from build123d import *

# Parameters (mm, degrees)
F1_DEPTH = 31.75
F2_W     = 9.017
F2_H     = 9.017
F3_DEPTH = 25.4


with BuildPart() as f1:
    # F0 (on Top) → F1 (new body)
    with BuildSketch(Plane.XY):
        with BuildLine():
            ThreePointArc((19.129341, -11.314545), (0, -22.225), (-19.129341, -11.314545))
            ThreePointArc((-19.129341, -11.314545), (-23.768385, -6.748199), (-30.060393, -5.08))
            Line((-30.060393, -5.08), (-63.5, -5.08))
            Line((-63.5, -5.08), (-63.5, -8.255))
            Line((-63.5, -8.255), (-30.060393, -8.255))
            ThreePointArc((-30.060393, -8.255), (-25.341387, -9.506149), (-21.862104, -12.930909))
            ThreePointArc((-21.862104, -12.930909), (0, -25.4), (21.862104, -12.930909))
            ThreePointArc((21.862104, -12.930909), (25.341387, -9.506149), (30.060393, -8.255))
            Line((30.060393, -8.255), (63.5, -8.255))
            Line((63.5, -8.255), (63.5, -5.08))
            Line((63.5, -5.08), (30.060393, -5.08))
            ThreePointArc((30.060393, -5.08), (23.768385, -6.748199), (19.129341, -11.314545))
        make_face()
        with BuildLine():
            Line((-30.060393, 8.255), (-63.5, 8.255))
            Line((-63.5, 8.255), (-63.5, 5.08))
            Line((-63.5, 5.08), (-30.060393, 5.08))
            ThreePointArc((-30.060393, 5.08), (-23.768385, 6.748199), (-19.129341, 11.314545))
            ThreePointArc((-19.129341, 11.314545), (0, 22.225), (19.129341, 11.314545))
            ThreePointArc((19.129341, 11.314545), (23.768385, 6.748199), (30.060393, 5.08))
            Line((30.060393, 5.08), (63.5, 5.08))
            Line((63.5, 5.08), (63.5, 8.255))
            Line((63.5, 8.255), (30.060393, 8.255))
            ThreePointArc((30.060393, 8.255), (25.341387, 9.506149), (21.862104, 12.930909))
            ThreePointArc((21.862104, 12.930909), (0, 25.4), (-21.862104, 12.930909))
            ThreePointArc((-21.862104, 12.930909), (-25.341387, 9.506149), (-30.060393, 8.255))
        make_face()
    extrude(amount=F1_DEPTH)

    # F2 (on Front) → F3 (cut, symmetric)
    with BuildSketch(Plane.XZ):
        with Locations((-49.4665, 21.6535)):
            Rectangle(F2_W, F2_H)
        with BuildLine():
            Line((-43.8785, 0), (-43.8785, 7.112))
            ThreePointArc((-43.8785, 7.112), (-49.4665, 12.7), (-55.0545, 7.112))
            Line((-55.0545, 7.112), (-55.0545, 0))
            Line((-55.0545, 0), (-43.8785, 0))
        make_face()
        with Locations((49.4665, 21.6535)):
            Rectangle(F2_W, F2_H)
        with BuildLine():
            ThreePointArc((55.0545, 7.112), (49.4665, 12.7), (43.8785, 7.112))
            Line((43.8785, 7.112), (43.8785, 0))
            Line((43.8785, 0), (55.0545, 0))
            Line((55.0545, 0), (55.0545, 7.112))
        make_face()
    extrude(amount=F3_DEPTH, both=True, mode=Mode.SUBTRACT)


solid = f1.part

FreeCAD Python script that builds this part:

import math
import FreeCAD as App
import Part
import Sketcher
from FreeCAD import Vector
Q = App.Units.Quantity

doc = App.newDocument("Part")
body = doc.addObject("PartDesign::Body", "Body")
body.AllowCompound = True

# Sketch on XY plane
sketch1 = doc.addObject("Sketcher::SketchObject", "Sketch")
body.addObject(sketch1)
sketch1.AttachmentSupport = (doc.XY_Plane, [""])
sketch1.MapMode = "FlatFace"
sketch1.addGeometry(Part.ArcOfCircle(Part.Circle(Vector(0, 0, 0), Vector(0, 0, 1), 22.225), math.radians(-149.396707), math.radians(-30.603293)), False)
sketch1.addGeometry(Part.ArcOfCircle(Part.Circle(Vector(-30.060394, -17.780001, 0), Vector(0, 0, 1), 12.700001), math.radians(30.603301), math.radians(89.999998)), False)
sketch1.addGeometry(Part.LineSegment(Vector(-30.060393, -5.08, 0), Vector(-63.5, -5.08, 0)), False)
sketch1.addGeometry(Part.LineSegment(Vector(-63.5, -5.08, 0), Vector(-63.5, -8.255, 0)), False)
sketch1.addGeometry(Part.LineSegment(Vector(-63.5, -8.255, 0), Vector(-30.060393, -8.255, 0)), False)
sketch1.addGeometry(Part.ArcOfCircle(Part.Circle(Vector(-30.060392, -17.779999, 0), Vector(0, 0, 1), 9.524999), math.radians(30.603292), math.radians(90.000003)), False)
sketch1.addGeometry(Part.ArcOfCircle(Part.Circle(Vector(0, 0, 0), Vector(0, 0, 1), 25.4), math.radians(-149.396706), math.radians(-30.603294)), False)
sketch1.addGeometry(Part.ArcOfCircle(Part.Circle(Vector(30.060392, -17.779999, 0), Vector(0, 0, 1), 9.524999), math.radians(89.999997), math.radians(149.396708)), False)
sketch1.addGeometry(Part.LineSegment(Vector(30.060393, -8.255, 0), Vector(63.5, -8.255, 0)), False)
sketch1.addGeometry(Part.LineSegment(Vector(63.5, -8.255, 0), Vector(63.5, -5.08, 0)), False)
sketch1.addGeometry(Part.LineSegment(Vector(63.5, -5.08, 0), Vector(30.060393, -5.08, 0)), False)
sketch1.addGeometry(Part.ArcOfCircle(Part.Circle(Vector(30.060394, -17.780001, 0), Vector(0, 0, 1), 12.700001), math.radians(90.000002), math.radians(149.396699)), False)
sketch1.addGeometry(Part.LineSegment(Vector(-30.060393, 8.255, 0), Vector(-63.5, 8.255, 0)), False)
sketch1.addGeometry(Part.LineSegment(Vector(-63.5, 8.255, 0), Vector(-63.5, 5.08, 0)), False)
sketch1.addGeometry(Part.LineSegment(Vector(-63.5, 5.08, 0), Vector(-30.060393, 5.08, 0)), False)
sketch1.addGeometry(Part.ArcOfCircle(Part.Circle(Vector(-30.060394, 17.780001, 0), Vector(0, 0, 1), 12.700001), math.radians(-89.999998), math.radians(-30.603301)), False)
sketch1.addGeometry(Part.ArcOfCircle(Part.Circle(Vector(0, 0, 0), Vector(0, 0, 1), 22.225), math.radians(30.603293), math.radians(149.396707)), False)
sketch1.addGeometry(Part.ArcOfCircle(Part.Circle(Vector(30.060394, 17.780001, 0), Vector(0, 0, 1), 12.700001), math.radians(-149.396699), math.radians(-90.000002)), False)
sketch1.addGeometry(Part.LineSegment(Vector(30.060393, 5.08, 0), Vector(63.5, 5.08, 0)), False)
sketch1.addGeometry(Part.LineSegment(Vector(63.5, 5.08, 0), Vector(63.5, 8.255, 0)), False)
sketch1.addGeometry(Part.LineSegment(Vector(63.5, 8.255, 0), Vector(30.060393, 8.255, 0)), False)
sketch1.addGeometry(Part.ArcOfCircle(Part.Circle(Vector(30.060392, 17.779999, 0), Vector(0, 0, 1), 9.524999), math.radians(-149.396708), math.radians(-89.999997)), False)
sketch1.addGeometry(Part.ArcOfCircle(Part.Circle(Vector(0, 0, 0), Vector(0, 0, 1), 25.4), math.radians(30.603294), math.radians(149.396706)), False)
sketch1.addGeometry(Part.ArcOfCircle(Part.Circle(Vector(-30.060392, 17.779999, 0), Vector(0, 0, 1), 9.524999), math.radians(-90.000003), math.radians(-30.603292)), False)
sketch1.addConstraint(Sketcher.Constraint("Tangent", 0, 1, 1, 1))
sketch1.addConstraint(Sketcher.Constraint("Tangent", 1, 2, 2, 1))
sketch1.addConstraint(Sketcher.Constraint("Coincident", 2, 2, 3, 1))
sketch1.addConstraint(Sketcher.Constraint("Coincident", 3, 2, 4, 1))
sketch1.addConstraint(Sketcher.Constraint("Tangent", 4, 2, 5, 2))
sketch1.addConstraint(Sketcher.Constraint("Tangent", 5, 1, 6, 1))
sketch1.addConstraint(Sketcher.Constraint("Tangent", 6, 2, 7, 2))
sketch1.addConstraint(Sketcher.Constraint("Tangent", 7, 1, 8, 1))
sketch1.addConstraint(Sketcher.Constraint("Coincident", 8, 2, 9, 1))
sketch1.addConstraint(Sketcher.Constraint("Coincident", 9, 2, 10, 1))
sketch1.addConstraint(Sketcher.Constraint("Tangent", 10, 2, 11, 1))
sketch1.addConstraint(Sketcher.Constraint("Tangent", 11, 2, 0, 2))
sketch1.addConstraint(Sketcher.Constraint("Coincident", 12, 2, 13, 1))
sketch1.addConstraint(Sketcher.Constraint("Coincident", 13, 2, 14, 1))
sketch1.addConstraint(Sketcher.Constraint("Tangent", 14, 2, 15, 1))
sketch1.addConstraint(Sketcher.Constraint("Tangent", 15, 2, 16, 2))
sketch1.addConstraint(Sketcher.Constraint("Tangent", 16, 1, 17, 1))
sketch1.addConstraint(Sketcher.Constraint("Tangent", 17, 2, 18, 1))
sketch1.addConstraint(Sketcher.Constraint("Coincident", 18, 2, 19, 1))
sketch1.addConstraint(Sketcher.Constraint("Coincident", 19, 2, 20, 1))
sketch1.addConstraint(Sketcher.Constraint("Tangent", 20, 2, 21, 2))
sketch1.addConstraint(Sketcher.Constraint("Tangent", 21, 1, 22, 1))
sketch1.addConstraint(Sketcher.Constraint("Tangent", 22, 2, 23, 2))
sketch1.addConstraint(Sketcher.Constraint("Tangent", 23, 1, 12, 1))
sketch1.addConstraint(Sketcher.Constraint("Horizontal", 2))
sketch1.addConstraint(Sketcher.Constraint("Vertical", 3))
sketch1.addConstraint(Sketcher.Constraint("Horizontal", 4))
sketch1.addConstraint(Sketcher.Constraint("Horizontal", 8))
sketch1.addConstraint(Sketcher.Constraint("Vertical", 9))
sketch1.addConstraint(Sketcher.Constraint("Horizontal", 10))
sketch1.addConstraint(Sketcher.Constraint("Horizontal", 12))
sketch1.addConstraint(Sketcher.Constraint("Vertical", 13))
sketch1.addConstraint(Sketcher.Constraint("Horizontal", 14))
sketch1.addConstraint(Sketcher.Constraint("Horizontal", 18))
sketch1.addConstraint(Sketcher.Constraint("Vertical", 19))
sketch1.addConstraint(Sketcher.Constraint("Horizontal", 20))
sketch1.addConstraint(Sketcher.Constraint("Coincident", 0, 3, -1, 1))
sketch1.addConstraint(Sketcher.Constraint("Coincident", 6, 3, -1, 1))
sketch1.addConstraint(Sketcher.Constraint("Coincident", 16, 3, -1, 1))
sketch1.addConstraint(Sketcher.Constraint("Coincident", 22, 3, -1, 1))
sketch1.addConstraint(Sketcher.Constraint("Coincident", 5, 3, 1, 3))
sketch1.addConstraint(Sketcher.Constraint("Coincident", 11, 3, 7, 3))
sketch1.addConstraint(Sketcher.Constraint("Coincident", 21, 3, 17, 3))
sketch1.addConstraint(Sketcher.Constraint("Coincident", 23, 3, 15, 3))
sketch1.addConstraint(Sketcher.Constraint("Equal", 5, 7))
sketch1.addConstraint(Sketcher.Constraint("Equal", 11, 15))
sketch1.addConstraint(Sketcher.Constraint("Equal", 0, 16))
sketch1.addConstraint(Sketcher.Constraint("Equal", 15, 17))
sketch1.addConstraint(Sketcher.Constraint("Equal", 7, 21))
sketch1.addConstraint(Sketcher.Constraint("Symmetric", 8, 2, 12, 2, -1, 1))
sketch1.addConstraint(Sketcher.Constraint("Symmetric", 2, 2, 18, 2, -1, 1))
sketch1.addConstraint(Sketcher.Constraint("Symmetric", 3, 2, 8, 2, -2))
sketch1.addConstraint(Sketcher.Constraint("Radius", 6, Q("1 in")))
sketch1.addConstraint(Sketcher.Constraint("Radius", 1, Q("0.5000001 in")))
sketch1.addConstraint(Sketcher.Constraint("Radius", 0, Q("0.875 in")))
sketch1.addConstraint(Sketcher.Constraint("DistanceY", 1, 3, -1, 1, Q("0.7000001 in")))
sketch1.addConstraint(Sketcher.Constraint("DistanceX", 2, 2, -1, 1, Q("2.5 in")))
pad1 = doc.addObject("PartDesign::Pad", "Pad")
body.addObject(pad1)
pad1.Profile = sketch1
pad1.Length = Q("1.25 in")

# Sketch on XZ plane
sketch2 = doc.addObject("Sketcher::SketchObject", "Sketch001")
body.addObject(sketch2)
sketch2.AttachmentSupport = (doc.XZ_Plane, [""])
sketch2.MapMode = "FlatFace"
sketch2.addGeometry(Part.LineSegment(Vector(-53.975, 26.162, 0), Vector(-53.975, 17.145, 0)), False)
sketch2.addGeometry(Part.LineSegment(Vector(-53.975, 17.145, 0), Vector(-44.958, 17.145, 0)), False)
sketch2.addGeometry(Part.LineSegment(Vector(-44.958, 17.145, 0), Vector(-44.958, 26.162, 0)), False)
sketch2.addGeometry(Part.LineSegment(Vector(-44.958, 26.162, 0), Vector(-53.975, 26.162, 0)), False)
sketch2.addGeometry(Part.LineSegment(Vector(-43.8785, 0, 0), Vector(-43.8785, 7.112, 0)), False)
sketch2.addGeometry(Part.ArcOfCircle(Part.Circle(Vector(-49.4665, 7.112, 0), Vector(0, 0, 1), 5.588), math.radians(0), math.radians(180)), False)
sketch2.addGeometry(Part.LineSegment(Vector(-55.0545, 7.112, 0), Vector(-55.0545, 0, 0)), False)
sketch2.addGeometry(Part.LineSegment(Vector(-55.0545, 0, 0), Vector(-43.8785, 0, 0)), False)
sketch2.addGeometry(Part.LineSegment(Vector(44.958, 26.162, 0), Vector(44.958, 17.145, 0)), False)
sketch2.addGeometry(Part.LineSegment(Vector(44.958, 17.145, 0), Vector(53.975, 17.145, 0)), False)
sketch2.addGeometry(Part.LineSegment(Vector(53.975, 17.145, 0), Vector(53.975, 26.162, 0)), False)
sketch2.addGeometry(Part.LineSegment(Vector(53.975, 26.162, 0), Vector(44.958, 26.162, 0)), False)
sketch2.addGeometry(Part.ArcOfCircle(Part.Circle(Vector(49.4665, 7.112, 0), Vector(0, 0, 1), 5.588), math.radians(0), math.radians(180)), False)
sketch2.addGeometry(Part.LineSegment(Vector(43.8785, 7.112, 0), Vector(43.8785, 0, 0)), False)
sketch2.addGeometry(Part.LineSegment(Vector(43.8785, 0, 0), Vector(55.0545, 0, 0)), False)
sketch2.addGeometry(Part.LineSegment(Vector(55.0545, 0, 0), Vector(55.0545, 7.112, 0)), False)
sketch2.addConstraint(Sketcher.Constraint("Coincident", 0, 2, 1, 1))
sketch2.addConstraint(Sketcher.Constraint("Coincident", 1, 2, 2, 1))
sketch2.addConstraint(Sketcher.Constraint("Coincident", 2, 2, 3, 1))
sketch2.addConstraint(Sketcher.Constraint("Coincident", 3, 2, 0, 1))
sketch2.addConstraint(Sketcher.Constraint("Tangent", 4, 2, 5, 1))
sketch2.addConstraint(Sketcher.Constraint("Tangent", 5, 2, 6, 1))
sketch2.addConstraint(Sketcher.Constraint("Coincident", 6, 2, 7, 1))
sketch2.addConstraint(Sketcher.Constraint("Coincident", 7, 2, 4, 1))
sketch2.addConstraint(Sketcher.Constraint("Coincident", 8, 2, 9, 1))
sketch2.addConstraint(Sketcher.Constraint("Coincident", 9, 2, 10, 1))
sketch2.addConstraint(Sketcher.Constraint("Coincident", 10, 2, 11, 1))
sketch2.addConstraint(Sketcher.Constraint("Coincident", 11, 2, 8, 1))
sketch2.addConstraint(Sketcher.Constraint("Tangent", 12, 2, 13, 1))
sketch2.addConstraint(Sketcher.Constraint("Coincident", 13, 2, 14, 1))
sketch2.addConstraint(Sketcher.Constraint("Coincident", 14, 2, 15, 1))
sketch2.addConstraint(Sketcher.Constraint("Tangent", 15, 2, 12, 1))
sketch2.addConstraint(Sketcher.Constraint("Vertical", 0))
sketch2.addConstraint(Sketcher.Constraint("Horizontal", 1))
sketch2.addConstraint(Sketcher.Constraint("Vertical", 2))
sketch2.addConstraint(Sketcher.Constraint("Horizontal", 3))
sketch2.addConstraint(Sketcher.Constraint("Vertical", 4))
sketch2.addConstraint(Sketcher.Constraint("Vertical", 6))
sketch2.addConstraint(Sketcher.Constraint("Horizontal", 7))
sketch2.addConstraint(Sketcher.Constraint("Vertical", 8))
sketch2.addConstraint(Sketcher.Constraint("Horizontal", 9))
sketch2.addConstraint(Sketcher.Constraint("Vertical", 10))
sketch2.addConstraint(Sketcher.Constraint("Horizontal", 11))
sketch2.addConstraint(Sketcher.Constraint("Vertical", 13))
sketch2.addConstraint(Sketcher.Constraint("Horizontal", 14))
sketch2.addConstraint(Sketcher.Constraint("Vertical", 15))
sketch2.addConstraint(Sketcher.Constraint("Equal", 5, 12))
sketch2.addConstraint(Sketcher.Constraint("Symmetric", 7, 2, 13, 2, -1, 1))
sketch2.addConstraint(Sketcher.Constraint("Symmetric", 1, 2, 8, 2, -2))
sketch2.addConstraint(Sketcher.Constraint("Symmetric", 3, 2, 10, 2, -2))
sketch2.addConstraint(Sketcher.Constraint("PointOnObject", 6, 2, -1))
sketch2.addConstraint(Sketcher.Constraint("Horizontal", 5, 3, 12, 3))
sketch2.addConstraint(Sketcher.Constraint("Equal", 11, 0))
sketch2.addConstraint(Sketcher.Constraint("Radius", 5, Q("0.22 in")))
sketch2.addConstraint(Sketcher.Constraint("DistanceY", 4, 1, 4, 2, Q("0.28 in")))
sketch2.addConstraint(Sketcher.Constraint("DistanceX", 1, 1, 1, 2, Q("0.355 in")))
sketch2.addConstraint(Sketcher.Constraint("DistanceX", 1, 2, -1, 1, Q("1.77 in")))
sketch2.addConstraint(Sketcher.Constraint("DistanceY", -1, 1, 2, 2, Q("1.03 in")))
sketch2.addConstraint(Sketcher.Constraint("DistanceX", 5, 3, 12, 3, Q("3.895 in")))
pocket1 = doc.addObject("PartDesign::Pocket", "Pocket")
body.addObject(pocket1)
pocket1.Profile = sketch2
pocket1.Length = Q("2 in")
pocket1.Midplane = True

doc.recompute()
